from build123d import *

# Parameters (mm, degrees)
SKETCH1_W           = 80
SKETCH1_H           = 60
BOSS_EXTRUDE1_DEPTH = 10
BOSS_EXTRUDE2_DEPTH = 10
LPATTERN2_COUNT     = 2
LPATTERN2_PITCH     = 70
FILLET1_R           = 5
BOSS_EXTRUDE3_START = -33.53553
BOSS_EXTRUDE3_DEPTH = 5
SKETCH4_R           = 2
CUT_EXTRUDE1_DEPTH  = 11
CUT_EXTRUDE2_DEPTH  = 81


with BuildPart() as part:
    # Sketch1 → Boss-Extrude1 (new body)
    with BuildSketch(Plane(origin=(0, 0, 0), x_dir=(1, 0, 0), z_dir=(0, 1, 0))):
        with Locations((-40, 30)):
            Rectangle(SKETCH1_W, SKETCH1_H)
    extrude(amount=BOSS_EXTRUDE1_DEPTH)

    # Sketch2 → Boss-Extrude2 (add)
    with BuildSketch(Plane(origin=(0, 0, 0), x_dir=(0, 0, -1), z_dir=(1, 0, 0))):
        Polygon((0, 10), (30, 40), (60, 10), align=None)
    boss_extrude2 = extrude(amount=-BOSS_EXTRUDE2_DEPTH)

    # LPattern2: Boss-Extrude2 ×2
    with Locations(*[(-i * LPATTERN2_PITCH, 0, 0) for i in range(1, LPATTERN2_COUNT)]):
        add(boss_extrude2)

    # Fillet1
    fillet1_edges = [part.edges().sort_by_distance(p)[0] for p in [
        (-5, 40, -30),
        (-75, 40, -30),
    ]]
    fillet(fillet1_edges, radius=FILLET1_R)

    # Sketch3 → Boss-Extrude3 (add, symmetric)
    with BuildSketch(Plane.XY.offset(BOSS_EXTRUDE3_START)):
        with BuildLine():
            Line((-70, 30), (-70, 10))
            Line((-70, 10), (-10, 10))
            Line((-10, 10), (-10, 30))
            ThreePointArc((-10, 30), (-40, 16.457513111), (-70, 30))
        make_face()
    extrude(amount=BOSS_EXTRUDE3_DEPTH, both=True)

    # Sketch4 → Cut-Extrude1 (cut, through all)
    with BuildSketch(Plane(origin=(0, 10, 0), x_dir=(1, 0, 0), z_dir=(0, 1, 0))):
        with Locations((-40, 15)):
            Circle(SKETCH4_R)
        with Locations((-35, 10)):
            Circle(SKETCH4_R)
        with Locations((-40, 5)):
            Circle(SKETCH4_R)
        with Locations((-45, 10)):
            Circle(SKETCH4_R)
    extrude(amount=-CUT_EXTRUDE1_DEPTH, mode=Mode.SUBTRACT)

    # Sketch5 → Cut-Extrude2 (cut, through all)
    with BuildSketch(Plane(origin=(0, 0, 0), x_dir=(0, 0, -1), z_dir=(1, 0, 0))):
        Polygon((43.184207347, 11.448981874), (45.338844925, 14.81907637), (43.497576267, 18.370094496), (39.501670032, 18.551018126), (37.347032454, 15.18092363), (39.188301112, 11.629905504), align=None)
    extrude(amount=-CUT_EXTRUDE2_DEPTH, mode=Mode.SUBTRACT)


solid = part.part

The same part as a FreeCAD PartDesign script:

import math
import FreeCAD as App
import Part
import Sketcher
from FreeCAD import Vector
Q = App.Units.Quantity


def edges_at(feature, points):
    """Names of the edges that pass closest to the given points."""
    edges = feature.Shape.Edges
    near = lambda p: min(range(len(edges)), key=lambda i: edges[i].distToShape(Part.Vertex(*p))[0])
    return sorted({f"Edge{near(p) + 1}" for p in points})

doc = App.newDocument("Part")
body = doc.addObject("PartDesign::Body", "Body")

sketch1 = doc.addObject("Sketcher::SketchObject", "Sketch")
body.addObject(sketch1)
sketch1.AttachmentSupport = (doc.XZ_Plane, [""])
sketch1.MapMode = "FlatFace"
sketch1.addGeometry([
    Part.LineSegment(Vector(-80, -60, 0), Vector(-80, 0, 0)),
    Part.LineSegment(Vector(-80, 0, 0), Vector(0, 0, 0)),
    Part.LineSegment(Vector(0, 0, 0), Vector(0, -60, 0)),
    Part.LineSegment(Vector(0, -60, 0), Vector(-80, -60, 0)),
], False)
sketch1.addConstraint([
    Sketcher.Constraint("Coincident", 0, 2, 1, 1),
    Sketcher.Constraint("Coincident", 1, 2, 2, 1),
    Sketcher.Constraint("Coincident", 2, 2, 3, 1),
    Sketcher.Constraint("Coincident", 3, 2, 0, 1),
    Sketcher.Constraint("Vertical", 0),
    Sketcher.Constraint("Horizontal", 1),
    Sketcher.Constraint("Vertical", 2),
    Sketcher.Constraint("Horizontal", 3),
    Sketcher.Constraint("Coincident", 1, 2, -1, 1),
    Sketcher.Constraint("DistanceX", 1, 1, 1, 2, Q("80 mm")),
    Sketcher.Constraint("DistanceY", 0, 1, 0, 2, Q("60 mm")),
])
pad1 = doc.addObject("PartDesign::Pad", "Pad")
body.addObject(pad1)
pad1.Profile = sketch1
pad1.Length = 10
pad1.Reversed = True

sketch2 = doc.addObject("Sketcher::SketchObject", "Sketch001")
body.addObject(sketch2)
sketch2.AttachmentSupport = (doc.YZ_Plane, [""])
sketch2.MapMode = "FlatFace"
sketch2.addGeometry([
    Part.LineSegment(Vector(40, -30, 0), Vector(10, 0, 0)),
    Part.LineSegment(Vector(10, 0, 0), Vector(10, -60, 0)),
    Part.LineSegment(Vector(10, -60, 0), Vector(40, -30, 0)),
], False)
sketch2.addConstraint([
    Sketcher.Constraint("Coincident", 0, 2, 1, 1),
    Sketcher.Constraint("Coincident", 1, 2, 2, 1),
    Sketcher.Constraint("Coincident", 2, 2, 0, 1),
    Sketcher.Constraint("Vertical", 1),
    Sketcher.Constraint("PointOnObject", 0, 2, -1),
    Sketcher.Constraint("Perpendicular", 0, 2),
    Sketcher.Constraint("Equal", 0, 2),
    Sketcher.Constraint("DistanceY", 1, 2, 1, 1, Q("60 mm")),
    Sketcher.Constraint("DistanceX", -1, 1, 0, 2, Q("10 mm")),
])
pad2 = doc.addObject("PartDesign::Pad", "Pad001")
body.addObject(pad2)
pad2.Profile = sketch2
pad2.Length = 10
pad2.Reversed = True
doc.recompute()

linearpattern = doc.addObject("PartDesign::LinearPattern", "LinearPattern")
body.addObject(linearpattern)
linearpattern.Originals = [pad2]
linearpattern.Direction = (doc.X_Axis, [""])
linearpattern.Mode = "offset"
linearpattern.Offset = 70
linearpattern.Occurrences = 2
linearpattern.Reversed = True
body.Tip = linearpattern
doc.recompute()

fillet = doc.addObject("PartDesign::Fillet", "Fillet")
body.addObject(fillet)
fillet.Base = (linearpattern, edges_at(linearpattern, [(-5, 40, -30), (-75, 40, -30)]))
fillet.Radius = 5

sketch3 = doc.addObject("Sketcher::SketchObject", "Sketch002")
body.addObject(sketch3)
sketch3.AttachmentSupport = (doc.XY_Plane, [""])
sketch3.MapMode = "FlatFace"
sketch3.AttachmentOffset = App.Placement(Vector(0, 0, -33.53553), App.Rotation())
sketch3.addGeometry([
    Part.LineSegment(Vector(-70, 30, 0), Vector(-70, 10, 0)),
    Part.LineSegment(Vector(-70, 10, 0), Vector(-10, 10, 0)),
    Part.LineSegment(Vector(-10, 10, 0), Vector(-10, 30, 0)),
    Part.ArcOfCircle(Part.Circle(Vector(-40, 56, 0), Vector(0, 0, 1), 40), math.radians(-139), math.radians(-41)),
], False)
sketch3.addConstraint([
    Sketcher.Constraint("Coincident", 0, 2, 1, 1),
    Sketcher.Constraint("Coincident", 1, 2, 2, 1),
    Sketcher.Constraint("Coincident", 2, 2, 3, 2),
    Sketcher.Constraint("Coincident", 3, 1, 0, 1),
    Sketcher.Constraint("Vertical", 0),
    Sketcher.Constraint("Horizontal", 1),
    Sketcher.Constraint("Vertical", 2),
    Sketcher.Constraint("Horizontal", 2, 2, 3, 1),
    Sketcher.Constraint("Radius", 3, Q("40 mm")),
    Sketcher.Constraint("DistanceX", 1, 1, 1, 2, Q("60 mm")),
    Sketcher.Constraint("DistanceY", 0, 2, 0, 1, Q("20 mm")),
    Sketcher.Constraint("DistanceX", 3, 3, -1, 1, Q("40 mm")),
    Sketcher.Constraint("DistanceY", -1, 1, 0, 2, Q("10 mm")),
])
pad3 = doc.addObject("PartDesign::Pad", "Pad002")
body.addObject(pad3)
pad3.Profile = sketch3
pad3.Length = 10
pad3.Midplane = True

sketch4 = doc.addObject("Sketcher::SketchObject", "Sketch003")
body.addObject(sketch4)
sketch4.AttachmentSupport = (doc.XZ_Plane, [""])
sketch4.MapMode = "FlatFace"
sketch4.AttachmentOffset = App.Placement(Vector(0, 0, -10), App.Rotation())
sketch4.addGeometry([
    Part.Circle(Vector(-40, -15, 0), Vector(0, 0, 1), 2),
    Part.Circle(Vector(-35, -10, 0), Vector(0, 0, 1), 2),
    Part.Circle(Vector(-40, -5, 0), Vector(0, 0, 1), 2),
    Part.Circle(Vector(-45, -10, 0), Vector(0, 0, 1), 2),
], False)
sketch4.addConstraint([
    Sketcher.Constraint("Equal", 0, 1),
    Sketcher.Constraint("Equal", 1, 2),
    Sketcher.Constraint("Equal", 2, 3),
    Sketcher.Constraint("Horizontal", 1, 3, 3, 3),
    Sketcher.Constraint("Vertical", 0, 3, 2, 3),
    Sketcher.Constraint("Diameter", 0, Q("4 mm")),
    Sketcher.Constraint("DistanceX", 0, 3, -1, 1, Q("40 mm")),
    Sketcher.Constraint("DistanceY", 0, 3, -1, 1, Q("15 mm")),
    Sketcher.Constraint("DistanceX", 1, 3, -1, 1, Q("35 mm")),
    Sketcher.Constraint("DistanceY", 1, 3, -1, 1, Q("10 mm")),
    Sketcher.Constraint("DistanceY", 2, 3, -1, 1, Q("5 mm")),
    Sketcher.Constraint("DistanceX", 3, 3, -1, 1, Q("45 mm")),
])
pocket1 = doc.addObject("PartDesign::Pocket", "Pocket")
body.addObject(pocket1)
pocket1.Profile = sketch4
pocket1.Type = "ThroughAll"
pocket1.Reversed = True

sketch5 = doc.addObject("Sketcher::SketchObject", "Sketch004")
body.addObject(sketch5)
sketch5.AttachmentSupport = (doc.YZ_Plane, [""])
sketch5.MapMode = "FlatFace"
sketch5.addGeometry([
    Part.LineSegment(Vector(11.4, -43.2, 0), Vector(14.8, -45.3, 0)),
    Part.LineSegment(Vector(14.8, -45.3, 0), Vector(18.4, -43.5, 0)),
    Part.LineSegment(Vector(18.4, -43.5, 0), Vector(18.6, -39.5, 0)),
    Part.LineSegment(Vector(18.6, -39.5, 0), Vector(15.2, -37.3, 0)),
    Part.LineSegment(Vector(15.2, -37.3, 0), Vector(11.6, -39.2, 0)),
    Part.LineSegment(Vector(11.6, -39.2, 0), Vector(11.4, -43.2, 0)),
], False)
sketch5.addConstraint([
    Sketcher.Constraint("Coincident", 0, 2, 1, 1),
    Sketcher.Constraint("Coincident", 1, 2, 2, 1),
    Sketcher.Constraint("Coincident", 2, 2, 3, 1),
    Sketcher.Constraint("Coincident", 3, 2, 4, 1),
    Sketcher.Constraint("Coincident", 4, 2, 5, 1),
    Sketcher.Constraint("Coincident", 5, 2, 0, 1),
    Sketcher.Constraint("Parallel", 0, 3),
    Sketcher.Constraint("Parallel", 1, 4),
    Sketcher.Constraint("Parallel", 2, 5),
    Sketcher.Constraint("Equal", 0, 1),
    Sketcher.Constraint("Equal", 1, 2),
    Sketcher.Constraint("Equal", 2, 3),
    Sketcher.Constraint("Distance", 0, Q("4 mm")),
    Sketcher.Constraint("DistanceY", 4, 2, -1, 1, Q("39.188301 mm")),
    Sketcher.Constraint("DistanceX", -1, 1, 2, 2, Q("18.551018 mm")),
    Sketcher.Constraint("DistanceY", 2, 2, -1, 1, Q("39.50167 mm")),
    Sketcher.Constraint("DistanceX", -1, 1, 5, 2, Q("11.448982 mm")),
    Sketcher.Constraint("DistanceX", 0, 2, 1, 2, Q("3.551018 mm")),
])
pocket2 = doc.addObject("PartDesign::Pocket", "Pocket001")
body.addObject(pocket2)
pocket2.Profile = sketch5
pocket2.Type = "ThroughAll"

doc.recompute()
